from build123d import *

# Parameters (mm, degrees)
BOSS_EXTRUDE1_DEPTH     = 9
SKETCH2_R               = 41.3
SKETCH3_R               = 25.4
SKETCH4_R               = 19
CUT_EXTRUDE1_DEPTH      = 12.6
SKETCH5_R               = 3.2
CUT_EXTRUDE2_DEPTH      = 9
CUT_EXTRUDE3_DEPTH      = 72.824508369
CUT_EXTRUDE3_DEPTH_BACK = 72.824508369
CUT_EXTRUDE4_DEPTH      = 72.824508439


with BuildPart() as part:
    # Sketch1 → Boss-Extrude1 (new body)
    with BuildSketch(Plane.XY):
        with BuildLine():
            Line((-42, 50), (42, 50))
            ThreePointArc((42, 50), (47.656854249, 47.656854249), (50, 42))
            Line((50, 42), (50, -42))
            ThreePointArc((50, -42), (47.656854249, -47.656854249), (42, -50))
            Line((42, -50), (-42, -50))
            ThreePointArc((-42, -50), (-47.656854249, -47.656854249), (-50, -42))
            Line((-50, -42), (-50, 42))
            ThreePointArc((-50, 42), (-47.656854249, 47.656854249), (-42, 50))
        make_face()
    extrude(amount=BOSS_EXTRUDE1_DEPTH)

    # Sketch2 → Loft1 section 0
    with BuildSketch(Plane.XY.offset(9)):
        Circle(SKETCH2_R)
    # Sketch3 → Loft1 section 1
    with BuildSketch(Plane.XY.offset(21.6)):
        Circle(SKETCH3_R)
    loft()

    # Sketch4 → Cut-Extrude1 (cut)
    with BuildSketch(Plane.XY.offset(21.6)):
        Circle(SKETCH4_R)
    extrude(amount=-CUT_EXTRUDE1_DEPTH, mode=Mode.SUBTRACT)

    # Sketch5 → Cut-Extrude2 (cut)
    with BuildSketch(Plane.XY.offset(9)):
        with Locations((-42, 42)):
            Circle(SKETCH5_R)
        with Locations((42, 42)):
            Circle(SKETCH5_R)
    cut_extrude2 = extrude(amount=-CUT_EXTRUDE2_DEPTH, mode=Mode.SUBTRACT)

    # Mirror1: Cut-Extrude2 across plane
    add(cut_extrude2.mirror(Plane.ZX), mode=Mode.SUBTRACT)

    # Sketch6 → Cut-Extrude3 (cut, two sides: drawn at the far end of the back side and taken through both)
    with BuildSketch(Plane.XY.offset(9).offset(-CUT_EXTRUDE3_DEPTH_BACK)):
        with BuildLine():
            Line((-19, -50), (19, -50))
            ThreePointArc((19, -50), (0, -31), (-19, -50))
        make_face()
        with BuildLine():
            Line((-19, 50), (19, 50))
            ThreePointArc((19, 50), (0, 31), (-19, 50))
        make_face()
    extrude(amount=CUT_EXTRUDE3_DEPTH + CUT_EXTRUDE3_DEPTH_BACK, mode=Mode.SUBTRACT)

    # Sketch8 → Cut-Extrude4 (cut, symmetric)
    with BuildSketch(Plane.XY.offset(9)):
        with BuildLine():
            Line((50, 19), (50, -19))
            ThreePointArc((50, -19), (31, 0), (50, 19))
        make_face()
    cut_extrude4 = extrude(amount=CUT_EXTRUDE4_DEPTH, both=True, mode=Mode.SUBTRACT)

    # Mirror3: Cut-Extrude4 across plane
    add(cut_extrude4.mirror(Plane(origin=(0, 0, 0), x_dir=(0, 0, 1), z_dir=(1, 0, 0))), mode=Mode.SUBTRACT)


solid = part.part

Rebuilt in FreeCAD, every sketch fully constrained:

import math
import FreeCAD as App
import Part
import Sketcher
Q = App.Units.Quantity

doc = App.newDocument("Part")
body = doc.addObject("PartDesign::Body", "Body")

sketch1 = body.newObject("Sketcher::SketchObject", "Sketch")
sketch1.AttachmentSupport = (doc.getObject("XY_Plane"), [""])
sketch1.MapMode = "FlatFace"
sketch1.addGeometry([
    Part.LineSegment(App.Vector(42, 50, 0), App.Vector(-42, 50, 0)),
    Part.ArcOfCircle(Part.Circle(App.Vector(-42, 42, 0), App.Vector(0, 0, 1), 8), math.radians(90), math.radians(180)),
    Part.LineSegment(App.Vector(-50, 42, 0), App.Vector(-50, -42, 0)),
    Part.ArcOfCircle(Part.Circle(App.Vector(-42, -42, 0), App.Vector(0, 0, 1), 8), math.radians(-180), math.radians(-90)),
    Part.LineSegment(App.Vector(-42, -50, 0), App.Vector(42, -50, 0)),
    Part.ArcOfCircle(Part.Circle(App.Vector(42, -42, 0), App.Vector(0, 0, 1), 8), math.radians(-90), math.radians(0)),
    Part.LineSegment(App.Vector(50, -42, 0), App.Vector(50, 42, 0)),
    Part.ArcOfCircle(Part.Circle(App.Vector(42, 42, 0), App.Vector(0, 0, 1), 8), math.radians(0), math.radians(90)),
], False)
sketch1.addConstraint([
    Sketcher.Constraint("Tangent", 0, 2, 1, 1),
    Sketcher.Constraint("Tangent", 1, 2, 2, 1),
    Sketcher.Constraint("Tangent", 2, 2, 3, 1),
    Sketcher.Constraint("Tangent", 3, 2, 4, 1),
    Sketcher.Constraint("Tangent", 4, 2, 5, 1),
    Sketcher.Constraint("Tangent", 5, 2, 6, 1),
    Sketcher.Constraint("Tangent", 6, 2, 7, 1),
    Sketcher.Constraint("Tangent", 7, 2, 0, 1),
    Sketcher.Constraint("Horizontal", 0),
    Sketcher.Constraint("Vertical", 2),
    Sketcher.Constraint("Horizontal", 4),
    Sketcher.Constraint("Vertical", 6),
    Sketcher.Constraint("Equal", 1, 3),
    Sketcher.Constraint("Equal", 3, 5),
    Sketcher.Constraint("Equal", 5, 7),
    Sketcher.Constraint("Symmetric", 1, 3, 5, 3, -1, 1),
    Sketcher.Constraint("Equal", 4, 2),
    Sketcher.Constraint("Radius", 1, Q("8 mm")),
    Sketcher.Constraint("DistanceX", 0, 2, 0, 1, Q("84 mm")),
])
pad1 = body.newObject("PartDesign::Pad", "Pad")
pad1.Profile = sketch1
pad1.Length = 9

sketch2 = body.newObject("Sketcher::SketchObject", "Sketch001")
sketch2.AttachmentSupport = (doc.getObject("XY_Plane"), [""])
sketch2.MapMode = "FlatFace"
sketch2.AttachmentOffset = App.Placement(App.Vector(0, 0, 9), App.Rotation())
sketch2.addGeometry(Part.Circle(App.Vector(0, 0, 0), App.Vector(0, 0, 1), 41.3), False)
sketch2.addConstraint([
    Sketcher.Constraint("Coincident", 0, 3, -1, 1),
    Sketcher.Constraint("Diameter", 0, Q("82.6 mm")),
])

sketch3 = body.newObject("Sketcher::SketchObject", "Sketch002")
sketch3.AttachmentSupport = (doc.getObject("XY_Plane"), [""])
sketch3.MapMode = "FlatFace"
sketch3.AttachmentOffset = App.Placement(App.Vector(0, 0, 21.6), App.Rotation())
sketch3.addGeometry(Part.Circle(App.Vector(0, 0, 0), App.Vector(0, 0, 1), 25.4), False)
sketch3.addConstraint([
    Sketcher.Constraint("Coincident", 0, 3, -1, 1),
    Sketcher.Constraint("Diameter", 0, Q("50.8 mm")),
])

additiveloft = body.newObject("PartDesign::AdditiveLoft", "AdditiveLoft")
additiveloft.Profile = sketch2
additiveloft.Sections = [sketch3]

sketch4 = body.newObject("Sketcher::SketchObject", "Sketch003")
sketch4.AttachmentSupport = (doc.getObject("XY_Plane"), [""])
sketch4.MapMode = "FlatFace"
sketch4.AttachmentOffset = App.Placement(App.Vector(0, 0, 21.6), App.Rotation())
sketch4.addGeometry(Part.Circle(App.Vector(0, 0, 0), App.Vector(0, 0, 1), 19), False)
sketch4.addConstraint([
    Sketcher.Constraint("Coincident", 0, 3, -1, 1),
    Sketcher.Constraint("Diameter", 0, Q("38 mm")),
])
pocket1 = body.newObject("PartDesign::Pocket", "Pocket")
pocket1.Profile = sketch4
pocket1.Length = 12.6

sketch5 = body.newObject("Sketcher::SketchObject", "Sketch004")
sketch5.AttachmentSupport = (doc.getObject("XY_Plane"), [""])
sketch5.MapMode = "FlatFace"
sketch5.AttachmentOffset = App.Placement(App.Vector(0, 0, 9), App.Rotation())
sketch5.addGeometry([
    Part.Circle(App.Vector(-42, 42, 0), App.Vector(0, 0, 1), 3.2),
    Part.Circle(App.Vector(42, 42, 0), App.Vector(0, 0, 1), 3.2),
], False)
sketch5.addConstraint([
    Sketcher.Constraint("Equal", 0, 1),
    Sketcher.Constraint("Symmetric", 0, 3, 1, 3, -2),
    Sketcher.Constraint("Diameter", 0, Q("6.4 mm")),
    Sketcher.Constraint("DistanceX", 0, 3, -1, 1, Q("42 mm")),
    Sketcher.Constraint("DistanceY", -1, 1, 0, 3, Q("42 mm")),
])
pocket2 = body.newObject("PartDesign::Pocket", "Pocket001")
pocket2.Profile = sketch5
pocket2.Length = 9
doc.recompute()

mirrored = body.newObject("PartDesign::Mirrored", "Mirrored")
mirrored.Originals = [pocket2]
mirrored.MirrorPlane = (doc.getObject("XZ_Plane"), [""])
body.Tip = mirrored

sketch6 = body.newObject("Sketcher::SketchObject", "Sketch005")
sketch6.AttachmentSupport = (doc.getObject("XY_Plane"), [""])
sketch6.MapMode = "FlatFace"
sketch6.AttachmentOffset = App.Placement(App.Vector(0, 0, 9), App.Rotation())
sketch6.addGeometry([
    Part.LineSegment(App.Vector(-19, -50, 0), App.Vector(19, -50, 0)),
    Part.ArcOfCircle(Part.Circle(App.Vector(0, -50, 0), App.Vector(0, 0, 1), 19), math.radians(0), math.radians(180)),
    Part.LineSegment(App.Vector(19, 50, 0), App.Vector(-19, 50, 0)),
    Part.ArcOfCircle(Part.Circle(App.Vector(0, 50, 0), App.Vector(0, 0, 1), 19), math.radians(180), math.radians(360)),
], False)
sketch6.addConstraint([
    Sketcher.Constraint("Coincident", 0, 1, 1, 2),
    Sketcher.Constraint("Coincident", 1, 1, 0, 2),
    Sketcher.Constraint("Coincident", 2, 1, 3, 2),
    Sketcher.Constraint("Coincident", 3, 1, 2, 2),
    Sketcher.Constraint("Horizontal", 0),
    Sketcher.Constraint("Horizontal", 2),
    Sketcher.Constraint("Equal", 1, 3),
    Sketcher.Constraint("Symmetric", 1, 3, 3, 3, -1, 1),
    Sketcher.Constraint("Symmetric", 1, 1, 2, 1, -1),
    Sketcher.Constraint("Horizontal", 1, 3, 0, 1),
    Sketcher.Constraint("Radius", 1, Q("19 mm")),
    Sketcher.Constraint("DistanceY", 1, 3, -1, 1, Q("50 mm")),
])
pocket3 = body.newObject("PartDesign::Pocket", "Pocket002")
pocket3.Profile = sketch6
pocket3.Type = "ThroughAll"
pocket3.Midplane = True

sketch7 = body.newObject("Sketcher::SketchObject", "Sketch006")
sketch7.AttachmentSupport = (doc.getObject("XY_Plane"), [""])
sketch7.MapMode = "FlatFace"
sketch7.AttachmentOffset = App.Placement(App.Vector(0, 0, 9), App.Rotation())
sketch7.addGeometry([
    Part.LineSegment(App.Vector(50, -19, 0), App.Vector(50, 19, 0)),
    Part.ArcOfCircle(Part.Circle(App.Vector(50, 0, 0), App.Vector(0, 0, 1), 19), math.radians(90), math.radians(270)),
], False)
sketch7.addConstraint([
    Sketcher.Constraint("Coincident", 0, 1, 1, 2),
    Sketcher.Constraint("Coincident", 1, 1, 0, 2),
    Sketcher.Constraint("Vertical", 0),
    Sketcher.Constraint("PointOnObject", 1, 3, -1),
    Sketcher.Constraint("Vertical", 1, 3, 0, 1),
    Sketcher.Constraint("Radius", 1, Q("19 mm")),
    Sketcher.Constraint("DistanceX", -1, 1, 1, 3, Q("50 mm")),
])
pocket4 = body.newObject("PartDesign::Pocket", "Pocket003")
pocket4.Profile = sketch7
pocket4.Length = 145.649017
pocket4.Midplane = True
doc.recompute()

mirrored2 = body.newObject("PartDesign::Mirrored", "Mirrored001")
mirrored2.Originals = [pocket4]
mirrored2.MirrorPlane = (doc.getObject("YZ_Plane"), [""])
body.Tip = mirrored2

doc.recompute()
